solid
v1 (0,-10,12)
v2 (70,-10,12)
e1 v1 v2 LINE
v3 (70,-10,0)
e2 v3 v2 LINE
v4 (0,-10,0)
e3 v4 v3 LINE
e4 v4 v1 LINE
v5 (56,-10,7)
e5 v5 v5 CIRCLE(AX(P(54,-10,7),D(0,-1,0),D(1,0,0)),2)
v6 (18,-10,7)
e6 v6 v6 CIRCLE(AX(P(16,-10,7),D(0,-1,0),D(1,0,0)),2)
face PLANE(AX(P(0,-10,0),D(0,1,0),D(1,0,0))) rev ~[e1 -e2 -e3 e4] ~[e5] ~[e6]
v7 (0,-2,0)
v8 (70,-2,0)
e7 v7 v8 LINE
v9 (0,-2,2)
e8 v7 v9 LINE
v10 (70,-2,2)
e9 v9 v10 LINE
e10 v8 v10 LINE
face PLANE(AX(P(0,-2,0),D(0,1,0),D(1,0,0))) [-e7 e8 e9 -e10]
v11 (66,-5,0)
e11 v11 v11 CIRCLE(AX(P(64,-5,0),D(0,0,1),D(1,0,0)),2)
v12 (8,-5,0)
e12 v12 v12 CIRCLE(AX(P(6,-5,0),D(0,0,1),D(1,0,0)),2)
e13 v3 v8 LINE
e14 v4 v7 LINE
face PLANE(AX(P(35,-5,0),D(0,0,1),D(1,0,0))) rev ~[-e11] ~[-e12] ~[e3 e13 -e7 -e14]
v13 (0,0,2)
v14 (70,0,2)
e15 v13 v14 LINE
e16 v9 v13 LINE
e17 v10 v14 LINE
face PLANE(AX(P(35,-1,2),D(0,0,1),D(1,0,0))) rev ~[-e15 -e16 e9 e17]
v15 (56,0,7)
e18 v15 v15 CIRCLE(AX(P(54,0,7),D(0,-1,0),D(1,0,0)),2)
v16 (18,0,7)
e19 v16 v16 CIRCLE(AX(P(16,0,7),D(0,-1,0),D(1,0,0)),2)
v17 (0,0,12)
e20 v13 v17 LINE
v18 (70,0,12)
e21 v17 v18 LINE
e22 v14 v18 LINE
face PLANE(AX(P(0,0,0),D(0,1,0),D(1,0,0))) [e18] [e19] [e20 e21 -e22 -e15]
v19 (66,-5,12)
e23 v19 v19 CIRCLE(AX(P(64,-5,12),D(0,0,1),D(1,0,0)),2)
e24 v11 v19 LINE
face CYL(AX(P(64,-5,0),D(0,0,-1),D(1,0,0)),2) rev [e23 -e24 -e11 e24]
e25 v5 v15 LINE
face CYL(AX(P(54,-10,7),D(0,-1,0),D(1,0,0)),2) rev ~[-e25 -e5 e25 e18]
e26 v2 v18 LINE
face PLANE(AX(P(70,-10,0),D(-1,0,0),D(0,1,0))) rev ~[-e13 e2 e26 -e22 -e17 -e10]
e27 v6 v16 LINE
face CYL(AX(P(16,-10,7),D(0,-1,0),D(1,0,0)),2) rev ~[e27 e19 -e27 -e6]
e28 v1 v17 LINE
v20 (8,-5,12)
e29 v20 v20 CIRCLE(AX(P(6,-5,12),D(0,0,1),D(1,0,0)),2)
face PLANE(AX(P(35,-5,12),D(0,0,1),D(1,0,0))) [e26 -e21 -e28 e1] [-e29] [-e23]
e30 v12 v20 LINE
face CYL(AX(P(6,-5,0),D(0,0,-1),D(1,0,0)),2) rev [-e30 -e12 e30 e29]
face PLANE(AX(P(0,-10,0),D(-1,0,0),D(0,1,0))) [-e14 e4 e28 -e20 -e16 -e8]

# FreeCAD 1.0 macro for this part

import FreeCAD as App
import Part
import Sketcher

V = App.Vector
Q = App.Units.Quantity


def add_polygon(sketch, points):
    """Adds a closed chain of lines whose ends are joined by coincident constraints."""
    first, n = sketch.GeometryCount, len(points)
    for a, b in zip(points, points[1:] + points[:1]):
        sketch.addGeometry(Part.LineSegment(App.Vector(*a, 0), App.Vector(*b, 0)), False)
    for i in range(n):
        sketch.addConstraint(Sketcher.Constraint("Coincident", first + i, 2, first + (i + 1) % n, 1))

doc = App.newDocument("Part")
body = doc.addObject("PartDesign::Body", "Body")

sketch1 = body.newObject("Sketcher::SketchObject", "Sketch")
sketch1.AttachmentSupport = (doc.getObject("XY_Plane"), [""])
sketch1.MapMode = "FlatFace"
add_polygon(sketch1, [(0, 0), (0, -10), (70, -10), (70, 0)])
sketch1.addGeometry(Part.Circle(V(6, -5, 0), V(0, 0, 1), 2), False)
sketch1.addGeometry(Part.Circle(V(64, -5, 0), V(0, 0, 1), 2), False)
sketch1.addConstraint([
    Sketcher.Constraint("Vertical", 0),
    Sketcher.Constraint("Horizontal", 1),
    Sketcher.Constraint("Vertical", 2),
    Sketcher.Constraint("Horizontal", 3),
    Sketcher.Constraint("Coincident", 3, 2, -1, 1),
    Sketcher.Constraint("Equal", 4, 5),
    Sketcher.Constraint("Horizontal", 4, 3, 5, 3),
    Sketcher.Constraint("Diameter", 4, Q("4 mm")),
    Sketcher.Constraint("DistanceX", 1, 1, 1, 2, Q("70 mm")),
    Sketcher.Constraint("DistanceY", 0, 2, 0, 1, Q("10 mm")),
    Sketcher.Constraint("DistanceX", -1, 1, 4, 3, Q("6 mm")),
    Sketcher.Constraint("DistanceY", 4, 3, -1, 1, Q("5 mm")),
    Sketcher.Constraint("DistanceX", -1, 1, 5, 3, Q("64 mm")),
])
pad1 = body.newObject("PartDesign::Pad", "Pad")
pad1.Profile = sketch1
pad1.Length = 12

sketch2 = body.newObject("Sketcher::SketchObject", "Sketch001")
sketch2.AttachmentSupport = (doc.getObject("XY_Plane"), [""])
sketch2.MapMode = "FlatFace"
add_polygon(sketch2, [(0, 0), (0, -2), (70, -2), (70, 0)])
sketch2.addConstraint([
    Sketcher.Constraint("Vertical", 0),
    Sketcher.Constraint("Horizontal", 1),
    Sketcher.Constraint("Vertical", 2),
    Sketcher.Constraint("Horizontal", 3),
    Sketcher.Constraint("Coincident", 3, 2, -1, 1),
    Sketcher.Constraint("DistanceX", 1, 1, 1, 2, Q("70 mm")),
    Sketcher.Constraint("DistanceY", 0, 2, 0, 1, Q("2 mm")),
])
pocket1 = body.newObject("PartDesign::Pocket", "Pocket")
pocket1.Profile = sketch2
pocket1.Length = 2
pocket1.Reversed = True

sketch3 = body.newObject("Sketcher::SketchObject", "Sketch002")
sketch3.AttachmentSupport = (doc.getObject("XZ_Plane"), [""])
sketch3.MapMode = "FlatFace"
sketch3.AttachmentOffset = App.Placement(V(0, 0, 10), App.Rotation())
sketch3.addGeometry([
    Part.Circle(V(16, 7, 0), V(0, 0, 1), 2),
    Part.Circle(V(54, 7, 0), V(0, 0, 1), 2),
], False)
sketch3.addConstraint([
    Sketcher.Constraint("Equal", 0, 1),
    Sketcher.Constraint("Horizontal", 0, 3, 1, 3),
    Sketcher.Constraint("Diameter", 0, Q("4 mm")),
    Sketcher.Constraint("DistanceX", -1, 1, 0, 3, Q("16 mm")),
    Sketcher.Constraint("DistanceY", -1, 1, 0, 3, Q("7 mm")),
    Sketcher.Constraint("DistanceX", -1, 1, 1, 3, Q("54 mm")),
])
pocket2 = body.newObject("PartDesign::Pocket", "Pocket001")
pocket2.Profile = sketch3
pocket2.Length = 25

doc.recompute()
